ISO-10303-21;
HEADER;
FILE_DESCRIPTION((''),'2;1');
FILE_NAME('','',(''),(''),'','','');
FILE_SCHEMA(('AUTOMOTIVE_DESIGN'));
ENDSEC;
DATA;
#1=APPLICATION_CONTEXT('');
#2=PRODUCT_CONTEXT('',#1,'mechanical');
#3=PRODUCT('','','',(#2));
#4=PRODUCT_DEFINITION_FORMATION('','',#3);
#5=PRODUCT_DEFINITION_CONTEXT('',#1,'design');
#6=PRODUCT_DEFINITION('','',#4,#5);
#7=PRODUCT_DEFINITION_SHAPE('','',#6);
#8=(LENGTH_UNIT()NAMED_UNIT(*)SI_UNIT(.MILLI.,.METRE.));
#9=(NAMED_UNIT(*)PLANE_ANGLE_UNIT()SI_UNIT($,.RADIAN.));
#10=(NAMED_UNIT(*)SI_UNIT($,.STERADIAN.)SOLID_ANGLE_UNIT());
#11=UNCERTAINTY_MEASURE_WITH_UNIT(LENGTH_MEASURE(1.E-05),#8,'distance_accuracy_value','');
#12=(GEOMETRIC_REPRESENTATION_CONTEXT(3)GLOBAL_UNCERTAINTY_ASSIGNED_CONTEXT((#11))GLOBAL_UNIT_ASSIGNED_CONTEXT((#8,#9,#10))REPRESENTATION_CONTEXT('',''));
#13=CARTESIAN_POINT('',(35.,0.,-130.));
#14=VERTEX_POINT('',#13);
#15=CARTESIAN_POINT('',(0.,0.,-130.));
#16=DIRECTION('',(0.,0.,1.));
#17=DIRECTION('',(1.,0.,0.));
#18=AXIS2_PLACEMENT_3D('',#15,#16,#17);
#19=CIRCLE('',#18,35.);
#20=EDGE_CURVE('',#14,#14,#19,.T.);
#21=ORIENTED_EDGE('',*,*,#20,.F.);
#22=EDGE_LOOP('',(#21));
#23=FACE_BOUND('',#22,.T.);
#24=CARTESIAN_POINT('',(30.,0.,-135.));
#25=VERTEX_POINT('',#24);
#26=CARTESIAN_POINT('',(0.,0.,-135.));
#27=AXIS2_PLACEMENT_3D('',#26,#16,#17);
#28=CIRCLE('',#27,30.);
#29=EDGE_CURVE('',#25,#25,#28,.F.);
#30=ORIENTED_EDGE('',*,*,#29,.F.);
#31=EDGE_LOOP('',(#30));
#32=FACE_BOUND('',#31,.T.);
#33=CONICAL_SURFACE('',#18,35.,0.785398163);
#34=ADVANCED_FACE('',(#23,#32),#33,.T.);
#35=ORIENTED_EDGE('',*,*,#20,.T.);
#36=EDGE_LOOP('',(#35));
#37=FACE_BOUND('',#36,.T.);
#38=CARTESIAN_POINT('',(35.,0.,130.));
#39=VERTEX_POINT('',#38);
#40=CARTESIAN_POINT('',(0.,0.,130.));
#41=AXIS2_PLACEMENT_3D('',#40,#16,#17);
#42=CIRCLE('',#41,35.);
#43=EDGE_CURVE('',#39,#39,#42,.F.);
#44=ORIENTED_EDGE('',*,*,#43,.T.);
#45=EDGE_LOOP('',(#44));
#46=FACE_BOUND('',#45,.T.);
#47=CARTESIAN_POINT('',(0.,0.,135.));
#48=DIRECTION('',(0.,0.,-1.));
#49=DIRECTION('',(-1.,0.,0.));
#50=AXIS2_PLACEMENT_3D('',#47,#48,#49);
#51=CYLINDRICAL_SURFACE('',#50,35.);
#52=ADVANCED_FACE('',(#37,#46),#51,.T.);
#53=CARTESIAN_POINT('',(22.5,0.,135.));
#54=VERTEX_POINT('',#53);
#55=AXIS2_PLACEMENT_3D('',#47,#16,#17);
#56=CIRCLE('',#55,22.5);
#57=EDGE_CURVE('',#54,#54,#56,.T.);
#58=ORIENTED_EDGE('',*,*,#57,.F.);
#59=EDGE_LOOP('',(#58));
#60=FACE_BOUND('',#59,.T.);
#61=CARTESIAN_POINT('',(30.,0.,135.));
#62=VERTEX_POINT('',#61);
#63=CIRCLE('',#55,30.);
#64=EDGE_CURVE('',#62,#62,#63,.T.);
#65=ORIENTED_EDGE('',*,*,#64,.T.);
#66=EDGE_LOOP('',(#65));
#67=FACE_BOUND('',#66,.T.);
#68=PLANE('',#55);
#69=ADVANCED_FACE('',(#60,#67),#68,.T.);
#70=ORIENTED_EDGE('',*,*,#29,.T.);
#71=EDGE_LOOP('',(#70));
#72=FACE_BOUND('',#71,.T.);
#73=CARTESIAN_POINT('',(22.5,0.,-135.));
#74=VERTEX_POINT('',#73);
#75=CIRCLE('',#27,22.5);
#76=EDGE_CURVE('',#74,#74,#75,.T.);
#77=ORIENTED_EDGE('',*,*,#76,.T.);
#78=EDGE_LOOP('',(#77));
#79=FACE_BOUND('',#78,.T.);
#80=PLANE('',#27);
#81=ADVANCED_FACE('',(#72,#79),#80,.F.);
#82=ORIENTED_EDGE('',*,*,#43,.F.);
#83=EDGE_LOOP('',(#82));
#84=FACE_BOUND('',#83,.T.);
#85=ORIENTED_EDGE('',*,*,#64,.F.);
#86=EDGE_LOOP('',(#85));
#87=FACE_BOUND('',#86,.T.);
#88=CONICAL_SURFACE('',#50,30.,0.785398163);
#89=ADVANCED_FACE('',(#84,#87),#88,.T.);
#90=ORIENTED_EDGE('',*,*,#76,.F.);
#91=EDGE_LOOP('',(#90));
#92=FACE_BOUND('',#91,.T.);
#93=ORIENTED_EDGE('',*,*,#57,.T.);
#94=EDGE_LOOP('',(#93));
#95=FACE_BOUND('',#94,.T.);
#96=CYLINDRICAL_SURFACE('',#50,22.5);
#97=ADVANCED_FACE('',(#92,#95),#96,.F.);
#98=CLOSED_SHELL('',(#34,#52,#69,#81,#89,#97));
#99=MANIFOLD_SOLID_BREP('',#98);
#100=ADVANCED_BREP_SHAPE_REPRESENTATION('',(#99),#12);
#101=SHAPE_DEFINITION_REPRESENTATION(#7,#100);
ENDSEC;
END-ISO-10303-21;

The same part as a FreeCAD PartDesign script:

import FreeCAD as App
import Part
import Sketcher


def edges_at(feature, points):
    """Names of the edges that pass closest to the given points."""
    edges = feature.Shape.Edges
    near = lambda p: min(range(len(edges)), key=lambda i: edges[i].distToShape(Part.Vertex(*p))[0])
    return sorted({f"Edge{near(p) + 1}" for p in points})

doc = App.newDocument("Part")
body = doc.addObject("PartDesign::Body", "Body")

sketch1 = doc.addObject("Sketcher::SketchObject", "Sketch")
body.addObject(sketch1)
sketch1.AttachmentSupport = (doc.XY_Plane, [""])
sketch1.MapMode = "FlatFace"
sketch1.addGeometry([
    Part.Circle(App.Vector(0, 0, 0), App.Vector(0, 0, 1), 35),
    Part.Circle(App.Vector(0, 0, 0), App.Vector(0, 0, 1), 22),
], False)
sketch1.addConstraint([
    Sketcher.Constraint("Coincident", 0, 3, -1, 1),
    Sketcher.Constraint("Coincident", 1, 3, -1, 1),
    Sketcher.Constraint("Diameter", 0, 70.0),
    Sketcher.Constraint("Diameter", 1, 45.0),
])
pad1 = doc.addObject("PartDesign::Pad", "Pad")
body.addObject(pad1)
pad1.Profile = sketch1
pad1.Length = 270
pad1.Midplane = True
doc.recompute()

chamfer = doc.addObject("PartDesign::Chamfer", "Chamfer")
body.addObject(chamfer)
chamfer.Base = (pad1, edges_at(pad1, [(-35, 0, -135), (-35, 0, 135)]))
chamfer.Size = 5

doc.recompute()
